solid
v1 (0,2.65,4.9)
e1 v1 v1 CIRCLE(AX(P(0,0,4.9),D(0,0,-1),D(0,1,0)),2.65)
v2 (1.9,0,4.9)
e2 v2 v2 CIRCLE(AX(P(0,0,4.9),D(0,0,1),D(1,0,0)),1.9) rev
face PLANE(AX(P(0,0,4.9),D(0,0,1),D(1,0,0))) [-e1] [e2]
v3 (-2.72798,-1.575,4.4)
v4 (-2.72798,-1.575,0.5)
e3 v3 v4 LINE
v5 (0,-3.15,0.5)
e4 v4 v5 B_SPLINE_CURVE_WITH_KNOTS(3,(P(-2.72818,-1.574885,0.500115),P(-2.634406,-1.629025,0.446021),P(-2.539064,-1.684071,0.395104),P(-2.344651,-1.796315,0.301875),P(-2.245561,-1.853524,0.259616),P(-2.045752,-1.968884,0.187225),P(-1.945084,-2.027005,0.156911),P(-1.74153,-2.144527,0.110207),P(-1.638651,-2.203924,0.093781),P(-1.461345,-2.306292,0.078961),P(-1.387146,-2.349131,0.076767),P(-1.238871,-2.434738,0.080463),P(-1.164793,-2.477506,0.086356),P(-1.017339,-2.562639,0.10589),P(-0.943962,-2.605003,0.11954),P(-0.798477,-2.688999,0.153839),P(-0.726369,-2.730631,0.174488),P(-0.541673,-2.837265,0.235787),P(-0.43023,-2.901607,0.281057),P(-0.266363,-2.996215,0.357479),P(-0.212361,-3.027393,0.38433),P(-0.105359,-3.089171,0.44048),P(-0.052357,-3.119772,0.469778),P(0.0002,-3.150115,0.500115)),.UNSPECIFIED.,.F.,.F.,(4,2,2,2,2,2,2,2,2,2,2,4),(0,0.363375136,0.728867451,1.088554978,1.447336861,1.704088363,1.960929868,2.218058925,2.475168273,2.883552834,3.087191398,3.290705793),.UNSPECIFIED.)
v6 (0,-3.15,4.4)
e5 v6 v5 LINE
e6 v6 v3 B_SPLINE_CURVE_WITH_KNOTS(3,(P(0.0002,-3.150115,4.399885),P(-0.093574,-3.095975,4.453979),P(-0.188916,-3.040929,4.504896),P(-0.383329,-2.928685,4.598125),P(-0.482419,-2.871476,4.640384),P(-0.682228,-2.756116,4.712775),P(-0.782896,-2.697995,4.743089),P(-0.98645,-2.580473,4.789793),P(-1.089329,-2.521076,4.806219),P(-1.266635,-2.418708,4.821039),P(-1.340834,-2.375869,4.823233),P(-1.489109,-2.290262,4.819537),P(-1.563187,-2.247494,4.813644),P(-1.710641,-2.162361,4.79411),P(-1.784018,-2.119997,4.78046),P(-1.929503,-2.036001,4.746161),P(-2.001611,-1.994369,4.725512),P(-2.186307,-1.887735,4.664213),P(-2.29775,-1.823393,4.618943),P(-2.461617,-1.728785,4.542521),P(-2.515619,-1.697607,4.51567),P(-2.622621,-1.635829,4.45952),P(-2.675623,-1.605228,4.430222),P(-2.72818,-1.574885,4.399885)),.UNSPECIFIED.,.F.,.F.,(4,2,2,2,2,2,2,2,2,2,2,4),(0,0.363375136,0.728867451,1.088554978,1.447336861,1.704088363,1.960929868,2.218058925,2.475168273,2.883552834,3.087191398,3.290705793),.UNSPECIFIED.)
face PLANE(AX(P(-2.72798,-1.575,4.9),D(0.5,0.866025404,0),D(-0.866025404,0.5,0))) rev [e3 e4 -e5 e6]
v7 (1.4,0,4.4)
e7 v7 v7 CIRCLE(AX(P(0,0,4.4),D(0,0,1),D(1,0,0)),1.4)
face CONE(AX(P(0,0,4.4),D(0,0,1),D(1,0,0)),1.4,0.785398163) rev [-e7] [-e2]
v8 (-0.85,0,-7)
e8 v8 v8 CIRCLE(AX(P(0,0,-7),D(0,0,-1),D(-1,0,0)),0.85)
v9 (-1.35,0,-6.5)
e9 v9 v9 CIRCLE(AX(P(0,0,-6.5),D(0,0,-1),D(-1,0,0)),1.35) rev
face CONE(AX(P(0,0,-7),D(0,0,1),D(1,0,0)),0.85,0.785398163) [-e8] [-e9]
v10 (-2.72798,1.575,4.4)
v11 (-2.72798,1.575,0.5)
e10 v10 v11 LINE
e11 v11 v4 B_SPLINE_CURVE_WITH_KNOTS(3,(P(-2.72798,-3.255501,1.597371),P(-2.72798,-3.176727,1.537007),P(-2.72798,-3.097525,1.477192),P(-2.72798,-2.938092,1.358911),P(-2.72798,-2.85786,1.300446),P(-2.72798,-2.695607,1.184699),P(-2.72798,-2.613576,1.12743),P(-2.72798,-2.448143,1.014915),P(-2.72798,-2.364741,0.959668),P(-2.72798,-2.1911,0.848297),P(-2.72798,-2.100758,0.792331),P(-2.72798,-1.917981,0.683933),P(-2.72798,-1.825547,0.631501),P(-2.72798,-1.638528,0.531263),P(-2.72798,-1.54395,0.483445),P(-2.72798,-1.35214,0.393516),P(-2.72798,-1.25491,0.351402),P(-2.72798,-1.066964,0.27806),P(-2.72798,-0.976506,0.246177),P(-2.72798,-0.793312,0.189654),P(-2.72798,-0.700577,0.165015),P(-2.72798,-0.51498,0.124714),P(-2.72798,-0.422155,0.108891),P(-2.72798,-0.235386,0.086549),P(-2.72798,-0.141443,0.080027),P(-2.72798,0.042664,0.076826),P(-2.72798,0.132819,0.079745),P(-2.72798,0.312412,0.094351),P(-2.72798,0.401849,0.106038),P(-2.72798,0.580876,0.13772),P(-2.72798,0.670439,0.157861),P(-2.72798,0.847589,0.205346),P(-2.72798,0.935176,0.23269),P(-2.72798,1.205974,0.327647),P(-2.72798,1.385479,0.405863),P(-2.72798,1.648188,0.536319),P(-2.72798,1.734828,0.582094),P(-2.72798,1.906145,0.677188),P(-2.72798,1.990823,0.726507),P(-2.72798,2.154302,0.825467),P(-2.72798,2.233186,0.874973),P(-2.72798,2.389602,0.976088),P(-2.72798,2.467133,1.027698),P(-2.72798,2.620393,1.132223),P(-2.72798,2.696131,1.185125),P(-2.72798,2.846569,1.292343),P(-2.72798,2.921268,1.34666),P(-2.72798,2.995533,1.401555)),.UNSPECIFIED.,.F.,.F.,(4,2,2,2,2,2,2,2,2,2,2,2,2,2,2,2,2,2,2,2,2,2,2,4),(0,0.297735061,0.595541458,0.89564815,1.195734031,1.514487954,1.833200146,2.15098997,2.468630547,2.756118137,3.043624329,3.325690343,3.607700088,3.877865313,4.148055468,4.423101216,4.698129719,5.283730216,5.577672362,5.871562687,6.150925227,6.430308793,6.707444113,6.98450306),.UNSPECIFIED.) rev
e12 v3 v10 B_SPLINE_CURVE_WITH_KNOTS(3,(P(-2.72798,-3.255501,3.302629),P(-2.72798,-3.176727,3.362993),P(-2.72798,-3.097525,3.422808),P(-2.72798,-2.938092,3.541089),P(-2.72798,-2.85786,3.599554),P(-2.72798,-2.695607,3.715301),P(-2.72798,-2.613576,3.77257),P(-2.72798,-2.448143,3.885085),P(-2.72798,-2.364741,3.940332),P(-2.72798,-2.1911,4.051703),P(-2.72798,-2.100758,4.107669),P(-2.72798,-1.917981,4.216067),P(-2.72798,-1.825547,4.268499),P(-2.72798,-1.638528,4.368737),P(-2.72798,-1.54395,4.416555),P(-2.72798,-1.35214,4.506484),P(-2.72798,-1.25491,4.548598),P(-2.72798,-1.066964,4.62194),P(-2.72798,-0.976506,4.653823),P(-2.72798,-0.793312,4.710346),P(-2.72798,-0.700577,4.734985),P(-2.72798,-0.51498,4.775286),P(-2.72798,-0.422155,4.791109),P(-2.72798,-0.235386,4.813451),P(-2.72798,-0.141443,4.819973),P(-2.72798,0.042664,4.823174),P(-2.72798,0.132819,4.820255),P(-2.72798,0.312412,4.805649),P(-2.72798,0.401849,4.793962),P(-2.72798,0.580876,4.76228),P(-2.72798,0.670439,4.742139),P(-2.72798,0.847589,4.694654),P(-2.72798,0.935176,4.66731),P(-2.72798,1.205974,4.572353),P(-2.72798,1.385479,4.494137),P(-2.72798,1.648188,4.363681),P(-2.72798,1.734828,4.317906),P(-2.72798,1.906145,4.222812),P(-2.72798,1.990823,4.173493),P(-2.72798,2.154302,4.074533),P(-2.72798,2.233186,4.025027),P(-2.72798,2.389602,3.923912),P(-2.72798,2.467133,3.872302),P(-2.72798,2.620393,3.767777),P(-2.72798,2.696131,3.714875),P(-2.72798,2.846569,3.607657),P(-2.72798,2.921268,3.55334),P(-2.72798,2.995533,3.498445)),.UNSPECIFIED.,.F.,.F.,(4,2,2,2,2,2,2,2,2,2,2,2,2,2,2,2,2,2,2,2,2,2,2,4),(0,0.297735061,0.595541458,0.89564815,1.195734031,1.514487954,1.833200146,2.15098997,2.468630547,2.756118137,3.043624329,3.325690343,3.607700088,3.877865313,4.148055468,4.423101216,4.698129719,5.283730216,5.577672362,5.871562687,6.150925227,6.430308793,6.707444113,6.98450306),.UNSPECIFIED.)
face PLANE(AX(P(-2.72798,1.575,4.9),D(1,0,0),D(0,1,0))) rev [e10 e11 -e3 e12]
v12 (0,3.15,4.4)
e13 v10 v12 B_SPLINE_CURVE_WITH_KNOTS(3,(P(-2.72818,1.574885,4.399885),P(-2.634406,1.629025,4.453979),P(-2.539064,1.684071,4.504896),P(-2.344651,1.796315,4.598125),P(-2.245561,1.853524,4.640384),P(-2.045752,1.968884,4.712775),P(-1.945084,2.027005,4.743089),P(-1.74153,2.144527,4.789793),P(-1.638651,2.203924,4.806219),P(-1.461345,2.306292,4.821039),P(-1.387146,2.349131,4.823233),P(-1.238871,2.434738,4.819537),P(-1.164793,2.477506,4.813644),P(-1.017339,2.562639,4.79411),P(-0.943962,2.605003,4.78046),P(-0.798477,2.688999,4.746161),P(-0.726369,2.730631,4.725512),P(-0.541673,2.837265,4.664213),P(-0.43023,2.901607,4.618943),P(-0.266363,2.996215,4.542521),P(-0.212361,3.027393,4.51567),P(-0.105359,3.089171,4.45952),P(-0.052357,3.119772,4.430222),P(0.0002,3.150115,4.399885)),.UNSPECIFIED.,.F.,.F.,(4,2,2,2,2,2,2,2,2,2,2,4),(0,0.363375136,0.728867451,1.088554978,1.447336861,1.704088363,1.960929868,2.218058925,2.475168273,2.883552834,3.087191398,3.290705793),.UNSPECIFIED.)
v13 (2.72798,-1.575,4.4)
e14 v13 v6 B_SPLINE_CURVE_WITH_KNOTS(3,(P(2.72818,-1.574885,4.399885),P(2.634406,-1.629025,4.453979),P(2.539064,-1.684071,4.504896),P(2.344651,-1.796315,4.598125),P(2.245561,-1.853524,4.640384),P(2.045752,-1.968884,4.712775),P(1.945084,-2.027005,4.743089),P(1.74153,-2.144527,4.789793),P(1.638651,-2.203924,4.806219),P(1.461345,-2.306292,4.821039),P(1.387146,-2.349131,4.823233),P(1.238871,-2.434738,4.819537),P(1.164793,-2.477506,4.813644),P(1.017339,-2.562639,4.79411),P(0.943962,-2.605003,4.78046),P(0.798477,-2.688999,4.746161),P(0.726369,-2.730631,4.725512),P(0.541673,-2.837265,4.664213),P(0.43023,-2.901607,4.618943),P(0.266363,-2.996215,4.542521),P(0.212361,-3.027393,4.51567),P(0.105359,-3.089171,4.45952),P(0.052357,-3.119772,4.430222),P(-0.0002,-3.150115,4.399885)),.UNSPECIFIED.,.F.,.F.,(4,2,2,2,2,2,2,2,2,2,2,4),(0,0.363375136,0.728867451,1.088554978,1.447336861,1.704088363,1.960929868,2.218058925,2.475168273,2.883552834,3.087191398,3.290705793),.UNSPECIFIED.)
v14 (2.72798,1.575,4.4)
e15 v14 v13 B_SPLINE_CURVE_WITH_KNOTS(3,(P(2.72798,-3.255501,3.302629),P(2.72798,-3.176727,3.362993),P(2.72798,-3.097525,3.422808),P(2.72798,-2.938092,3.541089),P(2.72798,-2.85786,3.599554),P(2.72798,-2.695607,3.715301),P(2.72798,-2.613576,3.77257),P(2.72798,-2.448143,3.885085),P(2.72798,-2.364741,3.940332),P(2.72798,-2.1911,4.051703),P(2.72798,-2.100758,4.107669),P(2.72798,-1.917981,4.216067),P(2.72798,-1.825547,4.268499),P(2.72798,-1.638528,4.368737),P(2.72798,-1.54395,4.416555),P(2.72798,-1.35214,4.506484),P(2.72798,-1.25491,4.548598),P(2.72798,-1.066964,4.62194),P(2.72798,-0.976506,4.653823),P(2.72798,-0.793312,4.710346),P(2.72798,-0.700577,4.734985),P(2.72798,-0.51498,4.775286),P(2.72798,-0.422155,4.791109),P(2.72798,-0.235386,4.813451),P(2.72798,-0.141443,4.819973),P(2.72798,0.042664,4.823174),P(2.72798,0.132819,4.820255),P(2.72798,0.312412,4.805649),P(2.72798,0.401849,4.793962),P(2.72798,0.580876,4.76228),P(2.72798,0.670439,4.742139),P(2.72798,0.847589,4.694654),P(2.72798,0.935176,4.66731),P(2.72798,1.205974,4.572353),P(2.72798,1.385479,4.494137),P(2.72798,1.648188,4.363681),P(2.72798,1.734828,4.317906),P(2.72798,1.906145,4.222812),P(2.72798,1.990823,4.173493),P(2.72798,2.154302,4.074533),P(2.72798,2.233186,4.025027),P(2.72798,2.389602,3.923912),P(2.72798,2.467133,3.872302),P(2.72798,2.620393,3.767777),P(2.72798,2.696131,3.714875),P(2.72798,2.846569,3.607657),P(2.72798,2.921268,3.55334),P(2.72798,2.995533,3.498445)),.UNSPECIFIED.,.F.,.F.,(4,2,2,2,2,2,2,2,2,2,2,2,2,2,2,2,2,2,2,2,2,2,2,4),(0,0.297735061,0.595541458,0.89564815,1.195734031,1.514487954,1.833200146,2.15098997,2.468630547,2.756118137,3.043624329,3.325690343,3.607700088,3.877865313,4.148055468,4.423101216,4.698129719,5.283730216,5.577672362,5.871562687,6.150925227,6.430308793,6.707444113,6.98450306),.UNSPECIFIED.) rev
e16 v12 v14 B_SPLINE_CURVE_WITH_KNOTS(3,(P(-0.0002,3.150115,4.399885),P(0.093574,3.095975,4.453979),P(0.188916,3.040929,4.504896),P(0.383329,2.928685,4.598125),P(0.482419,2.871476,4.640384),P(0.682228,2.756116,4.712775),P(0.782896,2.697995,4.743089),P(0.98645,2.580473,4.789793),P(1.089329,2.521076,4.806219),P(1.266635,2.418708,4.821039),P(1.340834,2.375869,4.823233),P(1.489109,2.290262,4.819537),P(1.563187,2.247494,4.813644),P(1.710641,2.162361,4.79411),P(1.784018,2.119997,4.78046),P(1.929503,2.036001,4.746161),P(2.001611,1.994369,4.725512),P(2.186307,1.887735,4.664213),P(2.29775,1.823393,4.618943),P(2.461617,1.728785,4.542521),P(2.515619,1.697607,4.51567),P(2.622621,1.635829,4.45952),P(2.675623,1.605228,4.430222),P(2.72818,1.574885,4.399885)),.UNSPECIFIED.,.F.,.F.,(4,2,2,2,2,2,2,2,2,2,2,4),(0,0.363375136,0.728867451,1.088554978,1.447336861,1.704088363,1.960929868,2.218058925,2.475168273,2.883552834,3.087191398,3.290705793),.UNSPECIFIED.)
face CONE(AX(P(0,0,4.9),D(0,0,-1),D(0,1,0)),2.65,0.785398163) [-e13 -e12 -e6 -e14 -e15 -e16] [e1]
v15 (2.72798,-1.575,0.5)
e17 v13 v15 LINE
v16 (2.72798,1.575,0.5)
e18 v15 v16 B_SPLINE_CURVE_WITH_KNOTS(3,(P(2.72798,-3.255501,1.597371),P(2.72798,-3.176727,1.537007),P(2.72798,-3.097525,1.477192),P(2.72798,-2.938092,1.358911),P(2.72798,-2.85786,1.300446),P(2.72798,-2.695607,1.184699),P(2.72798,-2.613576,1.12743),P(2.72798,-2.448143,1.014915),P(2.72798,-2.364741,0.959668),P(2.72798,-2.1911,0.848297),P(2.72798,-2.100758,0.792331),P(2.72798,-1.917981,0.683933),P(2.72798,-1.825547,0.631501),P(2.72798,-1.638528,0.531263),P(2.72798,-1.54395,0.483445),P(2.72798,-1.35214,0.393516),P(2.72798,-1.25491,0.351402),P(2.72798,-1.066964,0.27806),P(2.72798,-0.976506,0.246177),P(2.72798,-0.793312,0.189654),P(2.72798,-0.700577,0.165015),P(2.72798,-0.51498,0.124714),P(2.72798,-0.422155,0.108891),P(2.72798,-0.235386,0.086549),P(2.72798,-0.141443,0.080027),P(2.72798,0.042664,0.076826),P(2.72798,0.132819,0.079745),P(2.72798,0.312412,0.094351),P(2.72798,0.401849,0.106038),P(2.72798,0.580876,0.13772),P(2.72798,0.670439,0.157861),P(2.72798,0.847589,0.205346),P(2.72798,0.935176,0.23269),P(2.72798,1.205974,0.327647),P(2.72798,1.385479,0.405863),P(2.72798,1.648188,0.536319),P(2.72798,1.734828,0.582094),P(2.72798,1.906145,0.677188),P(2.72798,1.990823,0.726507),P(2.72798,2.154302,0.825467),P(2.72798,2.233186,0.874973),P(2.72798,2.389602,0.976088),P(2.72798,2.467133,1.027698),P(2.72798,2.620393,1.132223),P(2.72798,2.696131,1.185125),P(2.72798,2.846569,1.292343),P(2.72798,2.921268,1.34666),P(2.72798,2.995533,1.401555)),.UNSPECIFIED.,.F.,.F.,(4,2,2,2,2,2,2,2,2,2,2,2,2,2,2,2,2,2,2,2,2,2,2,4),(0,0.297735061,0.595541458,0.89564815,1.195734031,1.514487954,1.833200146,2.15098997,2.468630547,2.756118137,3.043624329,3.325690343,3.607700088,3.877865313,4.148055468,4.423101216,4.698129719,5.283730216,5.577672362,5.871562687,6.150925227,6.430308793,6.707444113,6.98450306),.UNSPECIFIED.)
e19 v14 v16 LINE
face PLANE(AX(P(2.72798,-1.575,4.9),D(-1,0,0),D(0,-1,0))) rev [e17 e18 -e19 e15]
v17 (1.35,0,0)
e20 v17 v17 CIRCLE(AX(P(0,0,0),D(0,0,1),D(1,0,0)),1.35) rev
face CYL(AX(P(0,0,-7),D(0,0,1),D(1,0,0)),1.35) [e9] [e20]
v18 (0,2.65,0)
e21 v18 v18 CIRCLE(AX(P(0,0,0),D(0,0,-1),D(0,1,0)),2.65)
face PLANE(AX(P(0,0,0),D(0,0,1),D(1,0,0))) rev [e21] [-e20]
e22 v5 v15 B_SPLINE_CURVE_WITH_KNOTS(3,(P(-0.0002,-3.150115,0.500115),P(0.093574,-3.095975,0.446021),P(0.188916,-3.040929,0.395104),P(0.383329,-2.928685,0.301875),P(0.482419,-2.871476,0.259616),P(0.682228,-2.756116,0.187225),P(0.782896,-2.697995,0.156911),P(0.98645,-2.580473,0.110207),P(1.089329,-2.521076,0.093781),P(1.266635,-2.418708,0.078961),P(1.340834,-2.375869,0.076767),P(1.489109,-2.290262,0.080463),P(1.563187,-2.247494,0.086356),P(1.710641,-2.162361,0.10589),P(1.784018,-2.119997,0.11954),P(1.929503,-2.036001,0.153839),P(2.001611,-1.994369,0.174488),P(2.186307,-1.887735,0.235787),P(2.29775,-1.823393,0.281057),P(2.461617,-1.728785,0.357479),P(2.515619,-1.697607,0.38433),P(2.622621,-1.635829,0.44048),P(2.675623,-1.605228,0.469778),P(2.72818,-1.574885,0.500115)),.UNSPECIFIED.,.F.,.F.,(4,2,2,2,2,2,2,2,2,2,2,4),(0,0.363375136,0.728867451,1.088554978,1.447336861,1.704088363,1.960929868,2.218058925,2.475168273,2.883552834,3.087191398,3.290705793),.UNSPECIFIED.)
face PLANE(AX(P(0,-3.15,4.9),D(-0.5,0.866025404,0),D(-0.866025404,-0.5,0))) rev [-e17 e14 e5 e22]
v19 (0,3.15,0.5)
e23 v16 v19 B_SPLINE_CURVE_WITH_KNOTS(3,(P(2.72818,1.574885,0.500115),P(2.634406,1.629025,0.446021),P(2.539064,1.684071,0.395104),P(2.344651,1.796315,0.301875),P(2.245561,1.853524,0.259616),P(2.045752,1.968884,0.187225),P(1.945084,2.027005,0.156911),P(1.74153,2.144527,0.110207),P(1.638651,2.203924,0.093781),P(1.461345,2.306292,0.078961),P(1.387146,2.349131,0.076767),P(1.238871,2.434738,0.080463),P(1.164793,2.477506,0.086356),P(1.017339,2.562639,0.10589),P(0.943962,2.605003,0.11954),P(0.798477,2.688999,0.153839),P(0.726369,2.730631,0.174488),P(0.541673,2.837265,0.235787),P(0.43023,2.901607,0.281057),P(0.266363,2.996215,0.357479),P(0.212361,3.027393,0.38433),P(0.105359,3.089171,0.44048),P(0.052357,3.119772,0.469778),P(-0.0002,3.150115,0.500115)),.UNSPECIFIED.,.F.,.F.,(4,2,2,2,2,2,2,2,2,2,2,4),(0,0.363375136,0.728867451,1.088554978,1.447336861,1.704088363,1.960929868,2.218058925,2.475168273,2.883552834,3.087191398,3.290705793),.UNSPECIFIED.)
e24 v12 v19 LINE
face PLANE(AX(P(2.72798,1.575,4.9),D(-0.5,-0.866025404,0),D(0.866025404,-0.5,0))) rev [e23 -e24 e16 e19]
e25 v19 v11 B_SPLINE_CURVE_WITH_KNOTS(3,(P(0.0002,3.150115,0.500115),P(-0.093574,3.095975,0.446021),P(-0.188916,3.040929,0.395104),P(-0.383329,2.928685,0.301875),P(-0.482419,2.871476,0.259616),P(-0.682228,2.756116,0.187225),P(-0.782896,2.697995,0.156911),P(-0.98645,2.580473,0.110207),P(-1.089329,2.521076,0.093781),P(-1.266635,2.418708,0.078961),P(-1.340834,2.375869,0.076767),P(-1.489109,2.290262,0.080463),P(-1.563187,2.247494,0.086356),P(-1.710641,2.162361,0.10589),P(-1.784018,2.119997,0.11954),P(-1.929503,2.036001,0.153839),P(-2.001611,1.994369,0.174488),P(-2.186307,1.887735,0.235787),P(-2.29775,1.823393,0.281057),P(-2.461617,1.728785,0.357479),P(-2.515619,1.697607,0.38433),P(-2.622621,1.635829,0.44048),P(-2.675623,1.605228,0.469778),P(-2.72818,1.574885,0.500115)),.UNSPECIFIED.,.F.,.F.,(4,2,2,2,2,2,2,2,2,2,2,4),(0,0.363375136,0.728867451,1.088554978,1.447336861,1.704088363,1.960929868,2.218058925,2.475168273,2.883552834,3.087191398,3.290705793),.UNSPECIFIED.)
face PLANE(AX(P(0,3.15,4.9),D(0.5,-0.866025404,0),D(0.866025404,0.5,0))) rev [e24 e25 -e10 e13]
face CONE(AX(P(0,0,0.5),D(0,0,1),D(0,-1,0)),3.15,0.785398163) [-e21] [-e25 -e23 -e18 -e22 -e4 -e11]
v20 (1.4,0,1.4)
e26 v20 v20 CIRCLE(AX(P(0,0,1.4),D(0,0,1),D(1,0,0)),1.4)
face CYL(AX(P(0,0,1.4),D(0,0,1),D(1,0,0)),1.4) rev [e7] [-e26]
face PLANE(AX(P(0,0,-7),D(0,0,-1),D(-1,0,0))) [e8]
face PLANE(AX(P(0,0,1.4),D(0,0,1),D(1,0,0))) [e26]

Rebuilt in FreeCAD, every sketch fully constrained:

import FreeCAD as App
import Part
import Sketcher

V = App.Vector
Q = App.Units.Quantity


def edges_at(feature, points):
    """Names of the edges that pass closest to the given points."""
    edges = feature.Shape.Edges
    near = lambda p: min(range(len(edges)), key=lambda i: edges[i].distToShape(Part.Vertex(*p))[0])
    return sorted({f"Edge{near(p) + 1}" for p in points})


def add_polygon(sketch, points):
    """Adds a closed chain of lines whose ends are joined by coincident constraints."""
    first, n = sketch.GeometryCount, len(points)
    for a, b in zip(points, points[1:] + points[:1]):
        sketch.addGeometry(Part.LineSegment(App.Vector(*a, 0), App.Vector(*b, 0)), False)
    for i in range(n):
        sketch.addConstraint(Sketcher.Constraint("Coincident", first + i, 2, first + (i + 1) % n, 1))

doc = App.newDocument("Part")
body = doc.addObject("PartDesign::Body", "Body")

# Sketch on XY plane
sketch1 = body.newObject("Sketcher::SketchObject", "Sketch")
sketch1.AttachmentSupport = (doc.getObject("XY_Plane"), [""])
sketch1.MapMode = "FlatFace"
add_polygon(sketch1, [(-2.7, 1.6), (-2.7, -1.6), (0, -3.1), (2.7, -1.6), (2.7, 1.6), (0, 3.1)])  # lines 0-5
sketch1.addConstraint([
    Sketcher.Constraint("Vertical", 0),
    Sketcher.Constraint("Vertical", 3),
    Sketcher.Constraint("Symmetric", 0, 2, 3, 2, -1, 1),
    Sketcher.Constraint("Symmetric", 1, 2, 4, 2, -1, 1),
    Sketcher.Constraint("PointOnObject", 1, 2, -2),
    Sketcher.Constraint("Parallel", 2, 5),
    Sketcher.Constraint("Horizontal", 0, 2, 2, 2),
    Sketcher.Constraint("Angle", 1, Q("-30 deg")),
    Sketcher.Constraint("DistanceY", 0, 2, 0, 1, Q("3.15 mm")),
    Sketcher.Constraint("DistanceY", 1, 2, 4, 2, Q("6.3 mm")),
])
pad1 = body.newObject("PartDesign::Pad", "Pad")
pad1.Profile = sketch1
pad1.Length = 4.9

# Sketch on YZ plane
sketch2 = body.newObject("Sketcher::SketchObject", "Sketch001")
sketch2.AttachmentSupport = (doc.getObject("YZ_Plane"), [""])
sketch2.MapMode = "FlatFace"
add_polygon(sketch2, [(2.6, 4.9), (3.1, 4.4), (3.1, 4.9)])  # lines 0-2
add_polygon(sketch2, [(3.1, 0), (3.1, 0.5), (2.6, 0)])  # lines 3-5
sketch2.addConstraint([
    Sketcher.Constraint("Vertical", 1),
    Sketcher.Constraint("Horizontal", 2),
    Sketcher.Constraint("Vertical", 3),
    Sketcher.Constraint("Horizontal", 5),
    Sketcher.Constraint("PointOnObject", 4, 2, -1),
    Sketcher.Constraint("Perpendicular", 0, 4),
    Sketcher.Constraint("Vertical", 1, 2, 3, 2),
    Sketcher.Constraint("Vertical", 2, 2, 4, 2),
    Sketcher.Constraint("Equal", 5, 1),
    Sketcher.Constraint("DistanceX", 2, 2, 2, 1, Q("0.5 mm")),
    Sketcher.Constraint("DistanceY", -1, 1, 0, 2, Q("4.4 mm")),
    Sketcher.Constraint("DistanceX", -1, 1, 0, 2, Q("3.15 mm")),
])
groove = body.newObject("PartDesign::Groove", "Groove")
groove.Profile = sketch2
groove.ReferenceAxis = (sketch2, ["V_Axis"])
groove.Angle = 360

# Sketch on XY plane
sketch3 = body.newObject("Sketcher::SketchObject", "Sketch002")
sketch3.AttachmentSupport = (doc.getObject("XY_Plane"), [""])
sketch3.MapMode = "FlatFace"
sketch3.addGeometry(Part.Circle(V(0, 0, 0), V(0, 0, 1), 1.4), False)
sketch3.addConstraint([
    Sketcher.Constraint("Coincident", 0, 3, -1, 1),
    Sketcher.Constraint("Diameter", 0, Q("2.7 mm")),
])
pad2 = body.newObject("PartDesign::Pad", "Pad001")
pad2.Profile = sketch3
pad2.Length = 7
pad2.Reversed = True

# Sketch on XY plane
sketch4 = body.newObject("Sketcher::SketchObject", "Sketch003")
sketch4.AttachmentSupport = (doc.getObject("XY_Plane"), [""])
sketch4.MapMode = "FlatFace"
sketch4.AttachmentOffset = App.Placement(V(0, 0, 4.9), App.Rotation())
sketch4.addGeometry(Part.Circle(V(0, 0, 0), V(0, 0, 1), 1.4), False)
sketch4.addConstraint([
    Sketcher.Constraint("Coincident", 0, 3, -1, 1),
    Sketcher.Constraint("Diameter", 0, Q("2.8 mm")),
])
pocket1 = body.newObject("PartDesign::Pocket", "Pocket")
pocket1.Profile = sketch4
pocket1.Length = 3.5
doc.recompute()

chamfer = body.newObject("PartDesign::Chamfer", "Chamfer")
chamfer.Base = (pocket1, edges_at(pocket1, [(-1.4, 0, 4.9)]))
chamfer.Size = 0.5
doc.recompute()

chamfer2 = body.newObject("PartDesign::Chamfer", "Chamfer001")
chamfer2.Base = (chamfer, edges_at(chamfer, [(-1.35, 0, -7)]))
chamfer2.Size = 0.5

doc.recompute()
